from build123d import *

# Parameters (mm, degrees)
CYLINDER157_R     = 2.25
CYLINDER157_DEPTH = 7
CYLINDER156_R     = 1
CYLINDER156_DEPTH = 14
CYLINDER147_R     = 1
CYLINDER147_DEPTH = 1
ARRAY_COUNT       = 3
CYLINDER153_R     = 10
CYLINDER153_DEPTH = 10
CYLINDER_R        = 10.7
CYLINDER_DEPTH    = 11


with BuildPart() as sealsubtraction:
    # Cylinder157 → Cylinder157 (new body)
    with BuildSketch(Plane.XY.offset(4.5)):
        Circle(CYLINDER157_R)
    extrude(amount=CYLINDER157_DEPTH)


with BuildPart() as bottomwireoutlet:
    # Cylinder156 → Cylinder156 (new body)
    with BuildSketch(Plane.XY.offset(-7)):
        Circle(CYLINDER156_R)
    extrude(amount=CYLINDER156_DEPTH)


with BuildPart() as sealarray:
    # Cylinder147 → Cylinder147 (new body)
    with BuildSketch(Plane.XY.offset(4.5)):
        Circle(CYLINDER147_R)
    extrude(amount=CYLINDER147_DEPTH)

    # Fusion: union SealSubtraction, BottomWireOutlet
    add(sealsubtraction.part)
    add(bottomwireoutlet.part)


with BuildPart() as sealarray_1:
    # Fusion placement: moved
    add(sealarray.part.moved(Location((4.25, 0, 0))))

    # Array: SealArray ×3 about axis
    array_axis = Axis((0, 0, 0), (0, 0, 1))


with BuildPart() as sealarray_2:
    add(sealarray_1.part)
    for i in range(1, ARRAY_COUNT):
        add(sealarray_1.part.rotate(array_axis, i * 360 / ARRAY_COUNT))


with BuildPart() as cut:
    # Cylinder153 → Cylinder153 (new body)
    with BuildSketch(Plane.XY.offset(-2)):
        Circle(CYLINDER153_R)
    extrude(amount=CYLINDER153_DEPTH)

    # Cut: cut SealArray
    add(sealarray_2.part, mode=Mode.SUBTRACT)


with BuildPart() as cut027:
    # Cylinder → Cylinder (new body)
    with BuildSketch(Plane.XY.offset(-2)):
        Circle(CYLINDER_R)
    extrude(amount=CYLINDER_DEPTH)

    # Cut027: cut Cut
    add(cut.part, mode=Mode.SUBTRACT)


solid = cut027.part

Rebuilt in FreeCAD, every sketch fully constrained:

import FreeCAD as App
import Part
import Sketcher
Q = App.Units.Quantity

doc = App.newDocument("Part")
body = doc.addObject("PartDesign::Body", "Body")

sketch1 = doc.addObject("Sketcher::SketchObject", "Sketch")
body.addObject(sketch1)
sketch1.AttachmentSupport = (doc.XY_Plane, [""])
sketch1.MapMode = "FlatFace"
sketch1.AttachmentOffset = App.Placement(App.Vector(0, 0, 4.5), App.Rotation())
sketch1.addGeometry(Part.Circle(App.Vector(0, 0, 0), App.Vector(0, 0, 1), 2.2), False)
sketch1.addConstraint([
    Sketcher.Constraint("Coincident", 0, 3, -1, 1),
    Sketcher.Constraint("Diameter", 0, Q("4.5 mm")),
])
pad1 = doc.addObject("PartDesign::Pad", "Pad")
body.addObject(pad1)
pad1.Profile = sketch1
pad1.Length = 7
body2 = doc.addObject("PartDesign::Body", "Body001")

sketch2 = doc.addObject("Sketcher::SketchObject", "Sketch001")
body2.addObject(sketch2)
sketch2.AttachmentSupport = (doc.getObject("XY_Plane001"), [""])
sketch2.MapMode = "FlatFace"
sketch2.AttachmentOffset = App.Placement(App.Vector(0, 0, -7), App.Rotation())
sketch2.addGeometry(Part.Circle(App.Vector(0, 0, 0), App.Vector(0, 0, 1), 1), False)
sketch2.addConstraint([
    Sketcher.Constraint("Coincident", 0, 3, -1, 1),
    Sketcher.Constraint("Diameter", 0, Q("2 mm")),
])
pad2 = doc.addObject("PartDesign::Pad", "Pad001")
body2.addObject(pad2)
pad2.Profile = sketch2
pad2.Length = 14
body3 = doc.addObject("PartDesign::Body", "Body002")

sketch3 = doc.addObject("Sketcher::SketchObject", "Sketch002")
body3.addObject(sketch3)
sketch3.AttachmentSupport = (doc.getObject("XY_Plane002"), [""])
sketch3.MapMode = "FlatFace"
sketch3.AttachmentOffset = App.Placement(App.Vector(0, 0, 4.5), App.Rotation())
sketch3.addGeometry(Part.Circle(App.Vector(0, 0, 0), App.Vector(0, 0, 1), 1), False)
sketch3.addConstraint([
    Sketcher.Constraint("Coincident", 0, 3, -1, 1),
    Sketcher.Constraint("Diameter", 0, Q("2 mm")),
])
pad3 = doc.addObject("PartDesign::Pad", "Pad002")
body3.addObject(pad3)
pad3.Profile = sketch3
pad3.Length = 1
doc.recompute()

boolean = doc.addObject("PartDesign::Boolean", "Boolean")
body3.addObject(boolean)
boolean.Type = "Fuse"
boolean.addObjects([body])
doc.recompute()

boolean2 = doc.addObject("PartDesign::Boolean", "Boolean001")
body3.addObject(boolean2)
boolean2.Type = "Fuse"
boolean2.addObjects([body2])
body4 = doc.addObject("PartDesign::Body", "Body003")
doc.recompute()

body3.Placement = App.Placement(App.Vector(4.25, 0, 0), App.Rotation(App.Vector(0, 0, 1), 0))
boolean3 = doc.addObject("PartDesign::Boolean", "Boolean002")
body4.addObject(boolean3)
boolean3.Type = "Fuse"
boolean3.addObjects([body3])
body5 = doc.addObject("PartDesign::Body", "Body004")
body5.AllowCompound = True
doc.recompute()

body5.BaseFeature = body4
doc.recompute()

body6 = doc.addObject("PartDesign::Body", "Body005")
body6.BaseFeature = body4
body6.Placement = App.Placement(App.Vector(0, 0, 0), App.Rotation(App.Vector(0, 0, 1), 120))
boolean4 = doc.addObject("PartDesign::Boolean", "Boolean003")
body5.addObject(boolean4)
boolean4.Type = "Fuse"
boolean4.addObjects([body6])
doc.recompute()

body4.Placement = App.Placement(App.Vector(0, 0, 0), App.Rotation(App.Vector(0, 0, 1), 240))
boolean5 = doc.addObject("PartDesign::Boolean", "Boolean004")
body5.addObject(boolean5)
boolean5.Type = "Fuse"
boolean5.addObjects([body4])
body7 = doc.addObject("PartDesign::Body", "Body006")

sketch4 = doc.addObject("Sketcher::SketchObject", "Sketch003")
body7.addObject(sketch4)
sketch4.AttachmentSupport = (doc.getObject("XY_Plane006"), [""])
sketch4.MapMode = "FlatFace"
sketch4.AttachmentOffset = App.Placement(App.Vector(0, 0, -2), App.Rotation())
sketch4.addGeometry(Part.Circle(App.Vector(0, 0, 0), App.Vector(0, 0, 1), 10), False)
sketch4.addConstraint([
    Sketcher.Constraint("Coincident", 0, 3, -1, 1),
    Sketcher.Constraint("Diameter", 0, Q("20 mm")),
])
pad4 = doc.addObject("PartDesign::Pad", "Pad003")
body7.addObject(pad4)
pad4.Profile = sketch4
pad4.Length = 10
doc.recompute()

boolean6 = doc.addObject("PartDesign::Boolean", "Boolean005")
body7.addObject(boolean6)
boolean6.Type = "Cut"
boolean6.addObjects([body5])
body8 = doc.addObject("PartDesign::Body", "Body007")

sketch5 = doc.addObject("Sketcher::SketchObject", "Sketch004")
body8.addObject(sketch5)
sketch5.AttachmentSupport = (doc.getObject("XY_Plane007"), [""])
sketch5.MapMode = "FlatFace"
sketch5.AttachmentOffset = App.Placement(App.Vector(0, 0, -2), App.Rotation())
sketch5.addGeometry(Part.Circle(App.Vector(0, 0, 0), App.Vector(0, 0, 1), 11), False)
sketch5.addConstraint([
    Sketcher.Constraint("Coincident", 0, 3, -1, 1),
    Sketcher.Constraint("Diameter", 0, Q("21.4 mm")),
])
pad5 = doc.addObject("PartDesign::Pad", "Pad004")
body8.addObject(pad5)
pad5.Profile = sketch5
pad5.Length = 11
doc.recompute()

boolean7 = doc.addObject("PartDesign::Boolean", "Boolean006")
body8.addObject(boolean7)
boolean7.Type = "Cut"
boolean7.addObjects([body7])

doc.recompute()
